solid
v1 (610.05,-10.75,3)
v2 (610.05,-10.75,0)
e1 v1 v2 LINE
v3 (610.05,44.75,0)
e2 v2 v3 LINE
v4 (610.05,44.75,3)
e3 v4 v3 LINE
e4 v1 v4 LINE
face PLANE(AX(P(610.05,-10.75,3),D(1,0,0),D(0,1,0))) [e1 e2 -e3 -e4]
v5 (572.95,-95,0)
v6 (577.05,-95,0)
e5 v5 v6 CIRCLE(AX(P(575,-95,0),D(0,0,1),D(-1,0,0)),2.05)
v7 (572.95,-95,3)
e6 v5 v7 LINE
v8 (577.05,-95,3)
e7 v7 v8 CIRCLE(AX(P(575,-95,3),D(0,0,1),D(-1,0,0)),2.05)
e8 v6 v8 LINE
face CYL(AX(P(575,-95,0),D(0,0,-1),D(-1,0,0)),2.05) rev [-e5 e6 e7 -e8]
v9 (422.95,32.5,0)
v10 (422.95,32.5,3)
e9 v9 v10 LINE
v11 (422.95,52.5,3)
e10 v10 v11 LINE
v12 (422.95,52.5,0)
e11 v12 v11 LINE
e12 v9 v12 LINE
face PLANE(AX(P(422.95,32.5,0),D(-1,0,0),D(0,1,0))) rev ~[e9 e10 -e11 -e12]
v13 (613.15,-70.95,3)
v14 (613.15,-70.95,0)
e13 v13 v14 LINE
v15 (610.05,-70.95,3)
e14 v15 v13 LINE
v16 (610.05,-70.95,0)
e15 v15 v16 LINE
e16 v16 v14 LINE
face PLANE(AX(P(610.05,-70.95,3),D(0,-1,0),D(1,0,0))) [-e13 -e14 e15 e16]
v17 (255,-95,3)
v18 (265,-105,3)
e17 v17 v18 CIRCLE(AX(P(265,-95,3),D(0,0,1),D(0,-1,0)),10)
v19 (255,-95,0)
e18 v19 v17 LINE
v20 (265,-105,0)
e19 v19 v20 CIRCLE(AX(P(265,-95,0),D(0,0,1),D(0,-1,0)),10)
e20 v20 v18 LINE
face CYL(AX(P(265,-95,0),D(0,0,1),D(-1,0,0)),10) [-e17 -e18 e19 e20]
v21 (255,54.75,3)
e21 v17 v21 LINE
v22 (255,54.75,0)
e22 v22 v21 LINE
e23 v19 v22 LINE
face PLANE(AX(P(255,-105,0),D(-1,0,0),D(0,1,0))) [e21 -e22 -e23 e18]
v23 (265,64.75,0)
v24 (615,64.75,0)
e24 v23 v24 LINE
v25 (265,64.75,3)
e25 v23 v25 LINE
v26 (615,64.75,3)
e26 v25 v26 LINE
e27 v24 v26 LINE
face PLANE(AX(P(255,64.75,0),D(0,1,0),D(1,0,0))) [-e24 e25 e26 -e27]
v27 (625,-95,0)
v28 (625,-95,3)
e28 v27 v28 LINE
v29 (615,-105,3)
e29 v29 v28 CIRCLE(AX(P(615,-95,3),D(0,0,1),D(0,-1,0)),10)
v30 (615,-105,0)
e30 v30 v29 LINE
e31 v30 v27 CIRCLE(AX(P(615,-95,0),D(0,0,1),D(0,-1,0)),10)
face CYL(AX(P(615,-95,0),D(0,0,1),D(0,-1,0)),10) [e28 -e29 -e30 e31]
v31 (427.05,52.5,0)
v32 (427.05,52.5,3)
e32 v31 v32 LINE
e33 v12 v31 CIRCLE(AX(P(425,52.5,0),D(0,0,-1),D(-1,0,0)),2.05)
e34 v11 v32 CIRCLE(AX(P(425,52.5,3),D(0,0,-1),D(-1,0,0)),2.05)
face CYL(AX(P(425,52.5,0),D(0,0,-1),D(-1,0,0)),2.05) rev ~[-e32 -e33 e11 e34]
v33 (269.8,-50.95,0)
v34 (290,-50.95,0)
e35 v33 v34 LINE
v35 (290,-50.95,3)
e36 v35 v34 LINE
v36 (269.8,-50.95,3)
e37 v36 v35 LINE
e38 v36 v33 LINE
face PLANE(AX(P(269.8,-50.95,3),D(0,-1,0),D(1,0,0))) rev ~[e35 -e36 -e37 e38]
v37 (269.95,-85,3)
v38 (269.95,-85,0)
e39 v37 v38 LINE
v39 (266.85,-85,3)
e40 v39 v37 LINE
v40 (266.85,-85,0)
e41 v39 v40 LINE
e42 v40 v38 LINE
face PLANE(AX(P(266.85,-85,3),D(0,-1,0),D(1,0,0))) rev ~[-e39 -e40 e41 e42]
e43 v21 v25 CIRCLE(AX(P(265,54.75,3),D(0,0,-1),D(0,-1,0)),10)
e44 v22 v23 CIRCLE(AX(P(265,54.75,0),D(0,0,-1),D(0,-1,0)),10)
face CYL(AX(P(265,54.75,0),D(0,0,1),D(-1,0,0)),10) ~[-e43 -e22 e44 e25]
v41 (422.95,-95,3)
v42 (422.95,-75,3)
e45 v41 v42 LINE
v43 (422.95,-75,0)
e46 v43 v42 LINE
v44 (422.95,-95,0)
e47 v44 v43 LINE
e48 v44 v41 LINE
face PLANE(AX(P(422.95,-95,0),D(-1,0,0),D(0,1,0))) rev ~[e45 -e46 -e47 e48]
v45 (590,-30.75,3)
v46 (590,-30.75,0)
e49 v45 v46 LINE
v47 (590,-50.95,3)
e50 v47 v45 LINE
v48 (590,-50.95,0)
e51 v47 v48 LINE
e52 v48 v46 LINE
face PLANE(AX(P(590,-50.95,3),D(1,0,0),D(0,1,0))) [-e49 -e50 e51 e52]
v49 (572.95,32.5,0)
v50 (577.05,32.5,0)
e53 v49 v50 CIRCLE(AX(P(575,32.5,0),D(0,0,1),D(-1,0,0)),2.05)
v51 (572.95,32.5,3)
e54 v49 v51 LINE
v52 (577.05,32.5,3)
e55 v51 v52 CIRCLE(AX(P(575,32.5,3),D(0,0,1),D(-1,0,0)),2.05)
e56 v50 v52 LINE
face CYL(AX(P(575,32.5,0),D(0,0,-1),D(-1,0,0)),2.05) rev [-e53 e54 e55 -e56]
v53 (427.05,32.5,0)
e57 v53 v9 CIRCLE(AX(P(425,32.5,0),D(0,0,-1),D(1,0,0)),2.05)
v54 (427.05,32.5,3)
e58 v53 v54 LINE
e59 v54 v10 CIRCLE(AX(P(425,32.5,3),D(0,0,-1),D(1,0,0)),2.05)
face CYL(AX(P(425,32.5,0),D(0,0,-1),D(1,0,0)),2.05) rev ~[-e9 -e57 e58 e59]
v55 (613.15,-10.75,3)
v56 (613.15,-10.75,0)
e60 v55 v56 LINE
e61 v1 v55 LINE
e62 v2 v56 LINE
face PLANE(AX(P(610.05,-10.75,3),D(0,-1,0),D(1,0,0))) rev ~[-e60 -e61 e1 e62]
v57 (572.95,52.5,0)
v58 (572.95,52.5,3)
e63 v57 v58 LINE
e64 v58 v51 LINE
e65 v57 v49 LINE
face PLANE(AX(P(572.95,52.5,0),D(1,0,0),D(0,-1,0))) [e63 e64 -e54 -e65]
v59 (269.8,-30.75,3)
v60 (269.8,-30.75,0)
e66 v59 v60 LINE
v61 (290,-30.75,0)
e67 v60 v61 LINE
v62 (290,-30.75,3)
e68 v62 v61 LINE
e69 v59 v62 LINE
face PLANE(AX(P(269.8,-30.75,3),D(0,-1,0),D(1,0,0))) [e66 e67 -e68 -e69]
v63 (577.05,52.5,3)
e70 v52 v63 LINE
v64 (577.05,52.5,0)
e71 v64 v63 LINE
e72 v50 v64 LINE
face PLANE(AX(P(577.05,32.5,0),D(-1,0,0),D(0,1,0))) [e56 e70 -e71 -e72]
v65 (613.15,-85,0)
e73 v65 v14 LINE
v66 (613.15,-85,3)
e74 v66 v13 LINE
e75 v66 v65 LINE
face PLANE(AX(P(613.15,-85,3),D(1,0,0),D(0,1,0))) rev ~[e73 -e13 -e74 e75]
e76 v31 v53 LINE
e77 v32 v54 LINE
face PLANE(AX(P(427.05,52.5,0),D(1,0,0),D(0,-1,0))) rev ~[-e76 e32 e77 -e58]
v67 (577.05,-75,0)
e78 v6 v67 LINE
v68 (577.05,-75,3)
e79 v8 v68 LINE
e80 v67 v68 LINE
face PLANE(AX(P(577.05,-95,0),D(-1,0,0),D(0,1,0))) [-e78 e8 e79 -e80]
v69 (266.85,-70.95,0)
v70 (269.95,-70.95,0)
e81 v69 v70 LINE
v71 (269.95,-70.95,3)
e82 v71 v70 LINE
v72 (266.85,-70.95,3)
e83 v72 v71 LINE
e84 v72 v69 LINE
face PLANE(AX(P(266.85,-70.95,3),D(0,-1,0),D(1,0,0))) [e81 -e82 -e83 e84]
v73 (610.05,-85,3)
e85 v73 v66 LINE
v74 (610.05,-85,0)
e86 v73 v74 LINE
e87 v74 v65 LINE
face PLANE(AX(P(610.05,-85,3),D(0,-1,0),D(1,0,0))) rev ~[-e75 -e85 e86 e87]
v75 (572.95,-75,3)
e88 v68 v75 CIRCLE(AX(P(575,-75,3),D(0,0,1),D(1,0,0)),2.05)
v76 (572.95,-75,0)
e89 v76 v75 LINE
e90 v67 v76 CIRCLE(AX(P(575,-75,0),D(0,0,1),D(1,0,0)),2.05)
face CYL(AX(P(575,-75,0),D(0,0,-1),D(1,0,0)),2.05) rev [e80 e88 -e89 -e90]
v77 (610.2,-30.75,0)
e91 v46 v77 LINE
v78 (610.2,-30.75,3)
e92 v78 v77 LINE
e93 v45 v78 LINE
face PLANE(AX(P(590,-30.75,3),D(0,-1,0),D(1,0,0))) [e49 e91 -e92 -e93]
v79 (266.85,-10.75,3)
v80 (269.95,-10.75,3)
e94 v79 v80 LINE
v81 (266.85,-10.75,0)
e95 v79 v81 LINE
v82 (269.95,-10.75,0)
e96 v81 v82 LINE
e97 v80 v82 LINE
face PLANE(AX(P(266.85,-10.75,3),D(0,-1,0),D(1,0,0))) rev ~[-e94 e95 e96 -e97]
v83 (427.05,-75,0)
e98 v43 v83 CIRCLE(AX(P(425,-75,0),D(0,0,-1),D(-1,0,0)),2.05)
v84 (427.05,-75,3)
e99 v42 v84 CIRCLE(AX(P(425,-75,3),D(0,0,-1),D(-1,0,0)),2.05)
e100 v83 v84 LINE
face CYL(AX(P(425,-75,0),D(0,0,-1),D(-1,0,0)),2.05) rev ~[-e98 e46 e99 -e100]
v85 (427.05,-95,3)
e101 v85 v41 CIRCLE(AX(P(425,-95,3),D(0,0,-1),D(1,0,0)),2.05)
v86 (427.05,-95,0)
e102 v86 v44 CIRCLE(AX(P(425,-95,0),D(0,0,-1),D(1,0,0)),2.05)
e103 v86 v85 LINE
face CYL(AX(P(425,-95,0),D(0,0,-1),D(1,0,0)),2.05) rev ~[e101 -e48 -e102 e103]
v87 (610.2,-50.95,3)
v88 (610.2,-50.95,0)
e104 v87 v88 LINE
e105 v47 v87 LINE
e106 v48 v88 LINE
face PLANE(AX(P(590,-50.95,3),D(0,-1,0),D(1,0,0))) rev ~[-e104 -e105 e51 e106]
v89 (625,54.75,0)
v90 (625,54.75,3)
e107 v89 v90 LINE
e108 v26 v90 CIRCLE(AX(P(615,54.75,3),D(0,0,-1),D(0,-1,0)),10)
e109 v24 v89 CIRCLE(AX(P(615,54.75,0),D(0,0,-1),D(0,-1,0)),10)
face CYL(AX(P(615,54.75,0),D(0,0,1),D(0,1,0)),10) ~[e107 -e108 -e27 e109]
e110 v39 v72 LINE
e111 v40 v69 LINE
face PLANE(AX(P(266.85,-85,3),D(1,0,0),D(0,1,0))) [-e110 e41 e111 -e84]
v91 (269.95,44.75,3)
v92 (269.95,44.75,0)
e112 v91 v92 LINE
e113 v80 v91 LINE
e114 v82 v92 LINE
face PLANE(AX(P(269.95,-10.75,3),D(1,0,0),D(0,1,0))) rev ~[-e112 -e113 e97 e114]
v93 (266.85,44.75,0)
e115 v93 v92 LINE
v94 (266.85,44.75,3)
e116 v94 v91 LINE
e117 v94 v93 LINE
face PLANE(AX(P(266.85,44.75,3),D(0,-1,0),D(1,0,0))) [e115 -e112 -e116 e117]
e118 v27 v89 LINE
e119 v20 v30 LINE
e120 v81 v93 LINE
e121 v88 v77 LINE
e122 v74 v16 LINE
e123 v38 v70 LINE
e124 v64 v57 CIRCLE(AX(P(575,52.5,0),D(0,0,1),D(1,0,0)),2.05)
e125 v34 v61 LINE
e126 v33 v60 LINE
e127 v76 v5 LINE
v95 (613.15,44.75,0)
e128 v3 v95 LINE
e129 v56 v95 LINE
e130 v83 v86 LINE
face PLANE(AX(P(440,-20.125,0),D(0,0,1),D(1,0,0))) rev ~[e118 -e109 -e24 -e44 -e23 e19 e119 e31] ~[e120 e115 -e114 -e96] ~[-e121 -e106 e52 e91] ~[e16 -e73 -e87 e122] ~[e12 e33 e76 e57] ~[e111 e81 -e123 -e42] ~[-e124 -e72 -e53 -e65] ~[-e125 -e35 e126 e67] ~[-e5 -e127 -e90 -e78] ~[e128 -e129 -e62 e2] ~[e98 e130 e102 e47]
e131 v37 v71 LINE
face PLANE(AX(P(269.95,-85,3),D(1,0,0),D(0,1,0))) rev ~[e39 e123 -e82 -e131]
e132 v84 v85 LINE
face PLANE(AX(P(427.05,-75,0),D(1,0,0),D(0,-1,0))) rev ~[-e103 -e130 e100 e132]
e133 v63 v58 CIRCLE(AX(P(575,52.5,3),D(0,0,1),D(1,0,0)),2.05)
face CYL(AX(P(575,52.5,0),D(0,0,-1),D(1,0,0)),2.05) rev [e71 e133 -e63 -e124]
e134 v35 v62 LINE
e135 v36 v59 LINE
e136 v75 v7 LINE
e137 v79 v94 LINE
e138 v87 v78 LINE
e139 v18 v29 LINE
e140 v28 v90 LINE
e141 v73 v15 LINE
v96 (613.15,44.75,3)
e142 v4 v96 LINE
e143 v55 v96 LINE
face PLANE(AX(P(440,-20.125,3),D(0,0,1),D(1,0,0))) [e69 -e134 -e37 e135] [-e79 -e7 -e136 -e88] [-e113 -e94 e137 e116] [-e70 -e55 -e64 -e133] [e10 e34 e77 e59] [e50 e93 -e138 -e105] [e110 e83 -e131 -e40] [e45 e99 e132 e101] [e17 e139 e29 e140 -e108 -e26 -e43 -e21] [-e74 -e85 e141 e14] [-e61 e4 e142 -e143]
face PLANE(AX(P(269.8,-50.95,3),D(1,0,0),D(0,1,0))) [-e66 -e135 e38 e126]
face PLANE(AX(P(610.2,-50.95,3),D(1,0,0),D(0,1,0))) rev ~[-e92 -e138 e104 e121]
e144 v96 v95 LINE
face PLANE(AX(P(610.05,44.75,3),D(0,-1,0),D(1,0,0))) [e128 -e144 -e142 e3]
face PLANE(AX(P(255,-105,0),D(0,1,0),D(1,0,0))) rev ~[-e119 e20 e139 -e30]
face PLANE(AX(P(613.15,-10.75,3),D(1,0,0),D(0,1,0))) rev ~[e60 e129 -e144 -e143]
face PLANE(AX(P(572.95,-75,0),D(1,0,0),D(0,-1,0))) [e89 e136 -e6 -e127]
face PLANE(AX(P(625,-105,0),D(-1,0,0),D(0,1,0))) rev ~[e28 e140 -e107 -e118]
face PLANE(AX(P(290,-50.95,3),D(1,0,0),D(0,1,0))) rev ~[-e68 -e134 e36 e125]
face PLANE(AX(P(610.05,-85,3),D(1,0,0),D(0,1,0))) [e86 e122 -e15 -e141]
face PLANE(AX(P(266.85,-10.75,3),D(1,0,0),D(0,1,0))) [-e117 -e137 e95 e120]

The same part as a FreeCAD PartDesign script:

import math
import FreeCAD as App
import Part
import Sketcher
from FreeCAD import Vector
Q = App.Units.Quantity


def edges_at(feature, points):
    """Names of the edges that pass closest to the given points."""
    edges = feature.Shape.Edges
    near = lambda p: min(range(len(edges)), key=lambda i: edges[i].distToShape(Part.Vertex(*p))[0])
    return sorted({f"Edge{near(p) + 1}" for p in points})

doc = App.newDocument("Part")
params = doc.addObject("Spreadsheet::Sheet", "Params")
for row, (alias, value) in enumerate([
    ("sketch1_width", "370 mm"),
    ("sketch1_height", "20 mm"),
    ("sketch1_radius", "2.05 mm"),
    ("sketch1_height2", "169.75 mm"),
    ("pad1_length", "3 mm"),
    ("sketch2_width", "20.2 mm"),
    ("sketch3_width", "3.1 mm"),
    ("sketch3_height", "55.5 mm"),
    ("sketch3_height2", "14.05 mm"),
    ("fillet_radius", "10 mm"),
], start=1):
    params.set(f"A{row}", alias)
    params.set(f"B{row}", "=" + value)
    params.setAlias(f"B{row}", alias)

body = doc.addObject("PartDesign::Body", "Body")

# Sketch on XY plane
sketch1 = body.newObject("Sketcher::SketchObject", "Sketch")
sketch1.AttachmentSupport = (doc.getObject("XY_Plane"), [""])
sketch1.MapMode = "FlatFace"
sketch1.addGeometry([
    Part.LineSegment(Vector(255, 64.8, 0), Vector(255, -105, 0)),  # 0
    Part.LineSegment(Vector(255, -105, 0), Vector(625, -105, 0)),  # 1
    Part.LineSegment(Vector(625, -105, 0), Vector(625, 64.8, 0)),  # 2
    Part.LineSegment(Vector(625, 64.8, 0), Vector(255, 64.8, 0)),  # 3
    Part.ArcOfCircle(Part.Circle(Vector(425, -75, 0), Vector(0, 0, 1), 2), math.radians(0), math.radians(180)),  # 4
    Part.LineSegment(Vector(427.1, -75, 0), Vector(427.1, -95, 0)),  # 5
    Part.ArcOfCircle(Part.Circle(Vector(425, -95, 0), Vector(0, 0, 1), 2), math.radians(180), math.radians(360)),  # 6
    Part.LineSegment(Vector(422.9, -95, 0), Vector(422.9, -75, 0)),  # 7
    Part.LineSegment(Vector(573, -95, 0), Vector(573, -75, 0)),  # 8
    Part.ArcOfCircle(Part.Circle(Vector(575, -75, 0), Vector(0, 0, 1), 2), math.radians(0), math.radians(180)),  # 9
    Part.LineSegment(Vector(577, -75, 0), Vector(577, -95, 0)),  # 10
    Part.ArcOfCircle(Part.Circle(Vector(575, -95, 0), Vector(0, 0, 1), 2), math.radians(180), math.radians(360)),  # 11
    Part.ArcOfCircle(Part.Circle(Vector(425, 52.5, 0), Vector(0, 0, 1), 2), math.radians(0), math.radians(180)),  # 12
    Part.LineSegment(Vector(427.1, 52.5, 0), Vector(427.1, 32.5, 0)),  # 13
    Part.ArcOfCircle(Part.Circle(Vector(425, 32.5, 0), Vector(0, 0, 1), 2), math.radians(180), math.radians(360)),  # 14
    Part.LineSegment(Vector(422.9, 32.5, 0), Vector(422.9, 52.5, 0)),  # 15
    Part.LineSegment(Vector(573, 32.5, 0), Vector(573, 52.5, 0)),  # 16
    Part.ArcOfCircle(Part.Circle(Vector(575, 52.5, 0), Vector(0, 0, 1), 2), math.radians(0), math.radians(180)),  # 17
    Part.LineSegment(Vector(577, 52.5, 0), Vector(577, 32.5, 0)),  # 18
    Part.ArcOfCircle(Part.Circle(Vector(575, 32.5, 0), Vector(0, 0, 1), 2), math.radians(180), math.radians(360)),  # 19
], False)
sketch1.addConstraint([
    Sketcher.Constraint("Coincident", 0, 2, 1, 1),
    Sketcher.Constraint("Coincident", 1, 2, 2, 1),
    Sketcher.Constraint("Coincident", 2, 2, 3, 1),
    Sketcher.Constraint("Coincident", 3, 2, 0, 1),
    Sketcher.Constraint("Tangent", 4, 1, 5, 1),
    Sketcher.Constraint("Tangent", 5, 2, 6, 2),
    Sketcher.Constraint("Tangent", 6, 1, 7, 1),
    Sketcher.Constraint("Tangent", 7, 2, 4, 2),
    Sketcher.Constraint("Tangent", 8, 2, 9, 2),
    Sketcher.Constraint("Tangent", 9, 1, 10, 1),
    Sketcher.Constraint("Tangent", 10, 2, 11, 2),
    Sketcher.Constraint("Tangent", 11, 1, 8, 1),
    Sketcher.Constraint("Tangent", 12, 1, 13, 1),
    Sketcher.Constraint("Tangent", 13, 2, 14, 2),
    Sketcher.Constraint("Tangent", 14, 1, 15, 1),
    Sketcher.Constraint("Tangent", 15, 2, 12, 2),
    Sketcher.Constraint("Tangent", 16, 2, 17, 2),
    Sketcher.Constraint("Tangent", 17, 1, 18, 1),
    Sketcher.Constraint("Tangent", 18, 2, 19, 2),
    Sketcher.Constraint("Tangent", 19, 1, 16, 1),
    Sketcher.Constraint("Vertical", 0),
    Sketcher.Constraint("Horizontal", 1),
    Sketcher.Constraint("Vertical", 2),
    Sketcher.Constraint("Horizontal", 3),
    Sketcher.Constraint("Vertical", 5),
    Sketcher.Constraint("Vertical", 7),
    Sketcher.Constraint("Vertical", 8),
    Sketcher.Constraint("Vertical", 10),
    Sketcher.Constraint("Vertical", 13),
    Sketcher.Constraint("Vertical", 15),
    Sketcher.Constraint("Vertical", 16),
    Sketcher.Constraint("Vertical", 18),
    Sketcher.Constraint("Equal", 6, 9),
    Sketcher.Constraint("Equal", 11, 12),
    Sketcher.Constraint("Equal", 14, 17),
    Sketcher.Constraint("Horizontal", 4, 3, 9, 3),
    Sketcher.Constraint("Horizontal", 6, 3, 11, 3),
    Sketcher.Constraint("Horizontal", 12, 3, 17, 3),
    Sketcher.Constraint("Horizontal", 14, 3, 19, 3),
    Sketcher.Constraint("Vertical", 6, 3, 12, 3),
    Sketcher.Constraint("Vertical", 11, 3, 17, 3),
    Sketcher.Constraint("Equal", 10, 13),
    Sketcher.Constraint("DistanceX", 1, 1, 1, 2, Q("370 mm")),
    Sketcher.Constraint("DistanceY", 5, 2, 5, 1, Q("20 mm")),
    Sketcher.Constraint("Radius", 4, Q("2.05 mm")),
    Sketcher.Constraint("DistanceX", -1, 1, 4, 3, Q("425 mm")),
    Sketcher.Constraint("DistanceY", 4, 3, -1, 1, Q("75 mm")),
    Sketcher.Constraint("DistanceX", -1, 1, 9, 3, Q("575 mm")),
    Sketcher.Constraint("DistanceX", -1, 1, 0, 2, Q("255 mm")),
    Sketcher.Constraint("DistanceY", 0, 2, -1, 1, Q("105 mm")),
    Sketcher.Constraint("DistanceY", 0, 2, 0, 1, Q("169.75 mm")),
    Sketcher.Constraint("DistanceY", -1, 1, 12, 3, Q("52.5 mm")),
])
sketch1.setExpression("Constraints[42]", "Params.sketch1_width")
sketch1.setExpression("Constraints[43]", "Params.sketch1_height")
sketch1.setExpression("Constraints[44]", "Params.sketch1_radius")
sketch1.setExpression("Constraints[50]", "Params.sketch1_height2")
pad1 = body.newObject("PartDesign::Pad", "Pad")
pad1.Profile = sketch1
pad1.setExpression("Length", "Params.pad1_length")

# Sketch on XY plane
sketch2 = body.newObject("Sketcher::SketchObject", "Sketch001")
sketch2.AttachmentSupport = (doc.getObject("XY_Plane"), [""])
sketch2.MapMode = "FlatFace"
sketch2.AttachmentOffset = App.Placement(Vector(0, 0, 3), App.Rotation())
sketch2.addGeometry([
    Part.LineSegment(Vector(270, -31, 0), Vector(270, -51, 0)),  # 0
    Part.LineSegment(Vector(270, -51, 0), Vector(290, -51, 0)),  # 1
    Part.LineSegment(Vector(290, -51, 0), Vector(290, -31, 0)),  # 2
    Part.LineSegment(Vector(290, -31, 0), Vector(270, -31, 0)),  # 3
    Part.LineSegment(Vector(590, -31, 0), Vector(590, -51, 0)),  # 4
    Part.LineSegment(Vector(590, -51, 0), Vector(610, -51, 0)),  # 5
    Part.LineSegment(Vector(610, -51, 0), Vector(610, -31, 0)),  # 6
    Part.LineSegment(Vector(610, -31, 0), Vector(590, -31, 0)),  # 7
], False)
sketch2.addConstraint([
    Sketcher.Constraint("Coincident", 0, 2, 1, 1),
    Sketcher.Constraint("Coincident", 1, 2, 2, 1),
    Sketcher.Constraint("Coincident", 2, 2, 3, 1),
    Sketcher.Constraint("Coincident", 3, 2, 0, 1),
    Sketcher.Constraint("Coincident", 4, 2, 5, 1),
    Sketcher.Constraint("Coincident", 5, 2, 6, 1),
    Sketcher.Constraint("Coincident", 6, 2, 7, 1),
    Sketcher.Constraint("Coincident", 7, 2, 4, 1),
    Sketcher.Constraint("Vertical", 0),
    Sketcher.Constraint("Horizontal", 1),
    Sketcher.Constraint("Vertical", 2),
    Sketcher.Constraint("Horizontal", 3),
    Sketcher.Constraint("Vertical", 4),
    Sketcher.Constraint("Horizontal", 5),
    Sketcher.Constraint("Vertical", 6),
    Sketcher.Constraint("Horizontal", 7),
    Sketcher.Constraint("Horizontal", 1, 2, 4, 2),
    Sketcher.Constraint("Horizontal", 3, 2, 6, 2),
    Sketcher.Constraint("Equal", 3, 5),
    Sketcher.Constraint("Equal", 7, 0),
    Sketcher.Constraint("DistanceX", 1, 1, 1, 2, Q("20.2 mm")),
    Sketcher.Constraint("DistanceX", -1, 1, 1, 2, Q("290 mm")),
    Sketcher.Constraint("DistanceX", -1, 1, 4, 2, Q("590 mm")),
    Sketcher.Constraint("DistanceY", 0, 2, -1, 1, Q("50.95 mm")),
])
sketch2.setExpression("Constraints[20]", "Params.sketch2_width")
pocket1 = body.newObject("PartDesign::Pocket", "Pocket")
pocket1.Profile = sketch2
pocket1.Type = "ThroughAll"

# Sketch on XY plane
sketch3 = body.newObject("Sketcher::SketchObject", "Sketch002")
sketch3.AttachmentSupport = (doc.getObject("XY_Plane"), [""])
sketch3.MapMode = "FlatFace"
sketch3.AttachmentOffset = App.Placement(Vector(0, 0, 3), App.Rotation())
sketch3.addGeometry([
    Part.LineSegment(Vector(266.9, 44.8, 0), Vector(266.9, -10.8, 0)),  # 0
    Part.LineSegment(Vector(266.9, -10.8, 0), Vector(269.9, -10.8, 0)),  # 1
    Part.LineSegment(Vector(269.9, -10.8, 0), Vector(269.9, 44.8, 0)),  # 2
    Part.LineSegment(Vector(269.9, 44.8, 0), Vector(266.9, 44.8, 0)),  # 3
    Part.LineSegment(Vector(266.9, -71, 0), Vector(266.9, -85, 0)),  # 4
    Part.LineSegment(Vector(266.9, -85, 0), Vector(269.9, -85, 0)),  # 5
    Part.LineSegment(Vector(269.9, -85, 0), Vector(269.9, -71, 0)),  # 6
    Part.LineSegment(Vector(269.9, -71, 0), Vector(266.9, -71, 0)),  # 7
    Part.LineSegment(Vector(610, -71, 0), Vector(610, -85, 0)),  # 8
    Part.LineSegment(Vector(610, -85, 0), Vector(613.1, -85, 0)),  # 9
    Part.LineSegment(Vector(613.1, -85, 0), Vector(613.1, -71, 0)),  # 10
    Part.LineSegment(Vector(613.1, -71, 0), Vector(610, -71, 0)),  # 11
    Part.LineSegment(Vector(610, 44.8, 0), Vector(610, -10.8, 0)),  # 12
    Part.LineSegment(Vector(610, -10.8, 0), Vector(613.1, -10.8, 0)),  # 13
    Part.LineSegment(Vector(613.1, -10.8, 0), Vector(613.1, 44.8, 0)),  # 14
    Part.LineSegment(Vector(613.1, 44.8, 0), Vector(610, 44.8, 0)),  # 15
], False)
sketch3.addConstraint([
    Sketcher.Constraint("Coincident", 0, 2, 1, 1),
    Sketcher.Constraint("Coincident", 1, 2, 2, 1),
    Sketcher.Constraint("Coincident", 2, 2, 3, 1),
    Sketcher.Constraint("Coincident", 3, 2, 0, 1),
    Sketcher.Constraint("Coincident", 4, 2, 5, 1),
    Sketcher.Constraint("Coincident", 5, 2, 6, 1),
    Sketcher.Constraint("Coincident", 6, 2, 7, 1),
    Sketcher.Constraint("Coincident", 7, 2, 4, 1),
    Sketcher.Constraint("Coincident", 8, 2, 9, 1),
    Sketcher.Constraint("Coincident", 9, 2, 10, 1),
    Sketcher.Constraint("Coincident", 10, 2, 11, 1),
    Sketcher.Constraint("Coincident", 11, 2, 8, 1),
    Sketcher.Constraint("Coincident", 12, 2, 13, 1),
    Sketcher.Constraint("Coincident", 13, 2, 14, 1),
    Sketcher.Constraint("Coincident", 14, 2, 15, 1),
    Sketcher.Constraint("Coincident", 15, 2, 12, 1),
    Sketcher.Constraint("Vertical", 0),
    Sketcher.Constraint("Horizontal", 1),
    Sketcher.Constraint("Vertical", 2),
    Sketcher.Constraint("Horizontal", 3),
    Sketcher.Constraint("Vertical", 4),
    Sketcher.Constraint("Horizontal", 5),
    Sketcher.Constraint("Vertical", 6),
    Sketcher.Constraint("Horizontal", 7),
    Sketcher.Constraint("Vertical", 8),
    Sketcher.Constraint("Horizontal", 9),
    Sketcher.Constraint("Vertical", 10),
    Sketcher.Constraint("Horizontal", 11),
    Sketcher.Constraint("Vertical", 12),
    Sketcher.Constraint("Horizontal", 13),
    Sketcher.Constraint("Vertical", 14),
    Sketcher.Constraint("Horizontal", 15),
    Sketcher.Constraint("Horizontal", 5, 2, 8, 2),
    Sketcher.Constraint("Horizontal", 7, 2, 10, 2),
    Sketcher.Constraint("Horizontal", 1, 2, 12, 2),
    Sketcher.Constraint("Horizontal", 3, 2, 14, 2),
    Sketcher.Constraint("Vertical", 3, 2, 4, 2),
    Sketcher.Constraint("Vertical", 2, 2, 5, 2),
    Sketcher.Constraint("Vertical", 11, 2, 12, 2),
    Sketcher.Constraint("Vertical", 10, 2, 13, 2),
    Sketcher.Constraint("Equal", 7, 9),
    Sketcher.Constraint("DistanceX", 1, 1, 1, 2, Q("3.1 mm")),
    Sketcher.Constraint("DistanceY", 0, 2, 0, 1, Q("55.5 mm")),
    Sketcher.Constraint("DistanceY", 4, 2, -1, 1, Q("85 mm")),
    Sketcher.Constraint("DistanceY", 4, 2, 4, 1, Q("14.05 mm")),
    Sketcher.Constraint("DistanceY", 6, 2, 1, 2, Q("60.2 mm")),
    Sketcher.Constraint("DistanceX", 5, 2, 8, 2, Q("340.1 mm")),
    Sketcher.Constraint("DistanceX", -1, 1, 0, 2, Q("266.85 mm")),
])
sketch3.setExpression("Constraints[41]", "Params.sketch3_width")
sketch3.setExpression("Constraints[42]", "Params.sketch3_height")
sketch3.setExpression("Constraints[44]", "Params.sketch3_height2")
pocket2 = body.newObject("PartDesign::Pocket", "Pocket001")
pocket2.Profile = sketch3
pocket2.Type = "ThroughAll"
doc.recompute()

fillet = body.newObject("PartDesign::Fillet", "Fillet")
fillet.Base = (pocket2, edges_at(pocket2, [
    (625, -105, 1.5),
    (255, -105, 1.5),
    (255, 64.75, 1.5),
    (625, 64.75, 1.5),
]))
fillet.setExpression("Radius", "Params.fillet_radius")

doc.recompute()
